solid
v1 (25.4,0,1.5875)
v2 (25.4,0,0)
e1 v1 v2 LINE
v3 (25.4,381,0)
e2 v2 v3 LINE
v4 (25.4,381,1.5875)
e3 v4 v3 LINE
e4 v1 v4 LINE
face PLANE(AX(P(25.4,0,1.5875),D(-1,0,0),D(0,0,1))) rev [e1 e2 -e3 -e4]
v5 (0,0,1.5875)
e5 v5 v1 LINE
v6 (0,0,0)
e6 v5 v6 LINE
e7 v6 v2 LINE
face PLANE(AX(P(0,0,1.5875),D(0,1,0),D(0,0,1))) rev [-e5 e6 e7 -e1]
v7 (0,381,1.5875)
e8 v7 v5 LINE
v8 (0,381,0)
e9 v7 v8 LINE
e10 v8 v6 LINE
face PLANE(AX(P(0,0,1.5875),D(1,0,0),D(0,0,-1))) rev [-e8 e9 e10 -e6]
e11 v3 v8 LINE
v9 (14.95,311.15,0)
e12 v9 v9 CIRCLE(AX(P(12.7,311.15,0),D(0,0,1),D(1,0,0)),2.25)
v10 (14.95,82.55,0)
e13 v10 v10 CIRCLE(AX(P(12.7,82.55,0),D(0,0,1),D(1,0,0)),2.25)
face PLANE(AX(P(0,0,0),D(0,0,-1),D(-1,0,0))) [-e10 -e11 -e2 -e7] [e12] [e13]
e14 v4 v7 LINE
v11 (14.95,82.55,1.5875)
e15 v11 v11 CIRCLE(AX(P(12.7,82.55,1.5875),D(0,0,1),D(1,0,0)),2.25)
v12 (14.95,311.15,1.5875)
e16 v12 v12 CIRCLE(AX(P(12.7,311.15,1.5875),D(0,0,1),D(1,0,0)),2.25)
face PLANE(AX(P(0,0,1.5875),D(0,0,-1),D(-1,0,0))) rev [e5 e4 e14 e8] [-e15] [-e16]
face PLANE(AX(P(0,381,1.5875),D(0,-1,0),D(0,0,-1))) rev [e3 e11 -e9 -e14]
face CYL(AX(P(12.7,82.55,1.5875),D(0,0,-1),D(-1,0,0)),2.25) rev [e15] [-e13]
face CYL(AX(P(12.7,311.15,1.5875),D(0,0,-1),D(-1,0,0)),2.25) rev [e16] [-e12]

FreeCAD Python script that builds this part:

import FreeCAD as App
import Part
import Sketcher
from FreeCAD import Vector
Q = App.Units.Quantity


def add_polygon(sketch, points):
    """Adds a closed chain of lines whose ends are joined by coincident constraints."""
    first, n = sketch.GeometryCount, len(points)
    for a, b in zip(points, points[1:] + points[:1]):
        sketch.addGeometry(Part.LineSegment(App.Vector(*a, 0), App.Vector(*b, 0)), False)
    for i in range(n):
        sketch.addConstraint(Sketcher.Constraint("Coincident", first + i, 2, first + (i + 1) % n, 1))

doc = App.newDocument("Part")
body = doc.addObject("PartDesign::Body", "Body")

sketch1 = body.newObject("Sketcher::SketchObject", "Sketch")
sketch1.AttachmentSupport = (doc.getObject("XY_Plane"), [""])
sketch1.MapMode = "FlatFace"
add_polygon(sketch1, [(0, 381), (0, 0), (25.4, 0), (25.4, 381)])
sketch1.addGeometry(Part.Circle(Vector(12.7, 82.55, 0), Vector(0, 0, 1), 2.25), False)
sketch1.addGeometry(Part.Circle(Vector(12.7, 311.15, 0), Vector(0, 0, 1), 2.25), False)
sketch1.addConstraint(Sketcher.Constraint("Vertical", 0))
sketch1.addConstraint(Sketcher.Constraint("Horizontal", 1))
sketch1.addConstraint(Sketcher.Constraint("Vertical", 2))
sketch1.addConstraint(Sketcher.Constraint("Horizontal", 3))
sketch1.addConstraint(Sketcher.Constraint("Coincident", 0, 2, -1, 1))
sketch1.addConstraint(Sketcher.Constraint("Equal", 4, 5))
sketch1.addConstraint(Sketcher.Constraint("Vertical", 4, 3, 5, 3))
sketch1.addConstraint(Sketcher.Constraint("DistanceX", 1, 1, 1, 2, Q("1 in")))
sketch1.addConstraint(Sketcher.Constraint("DistanceY", 0, 2, 0, 1, Q("15 in")))
sketch1.addConstraint(Sketcher.Constraint("DistanceY", 4, 3, 5, 3, Q("9 in")))
sketch1.addConstraint(Sketcher.Constraint("DistanceX", -1, 1, 4, 3, Q("0.5 in")))
sketch1.addConstraint(Sketcher.Constraint("Diameter", 4, 4.5))
sketch1.addConstraint(Sketcher.Constraint("DistanceY", -1, 1, 4, 3, Q("3.25 in")))
pad1 = body.newObject("PartDesign::Pad", "Pad")
pad1.Profile = sketch1
pad1.Length = Q("0.0625 in")

doc.recompute()
